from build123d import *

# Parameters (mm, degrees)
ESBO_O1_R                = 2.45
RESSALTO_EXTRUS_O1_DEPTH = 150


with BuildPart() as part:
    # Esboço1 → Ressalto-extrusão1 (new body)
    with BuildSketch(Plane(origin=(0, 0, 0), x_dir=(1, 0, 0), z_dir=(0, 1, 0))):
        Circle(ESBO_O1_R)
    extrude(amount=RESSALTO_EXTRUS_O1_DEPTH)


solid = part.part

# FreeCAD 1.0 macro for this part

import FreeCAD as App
import Part
import Sketcher

V = App.Vector

doc = App.newDocument("Part")
body = doc.addObject("PartDesign::Body", "Body")

# Sketch on XZ plane
sketch1 = body.newObject("Sketcher::SketchObject", "Sketch")
sketch1.AttachmentSupport = (doc.getObject("XZ_Plane"), [""])
sketch1.MapMode = "FlatFace"
sketch1.addGeometry(Part.Circle(V(0, 0, 0), V(0, 0, 1), 2.5), False)
sketch1.addConstraint([
    Sketcher.Constraint("Coincident", 0, 3, -1, 1),
    Sketcher.Constraint("Diameter", 0, 4.9),
])
pad1 = body.newObject("PartDesign::Pad", "Pad")
pad1.Profile = sketch1
pad1.Length = 150
pad1.Reversed = True

doc.recompute()
